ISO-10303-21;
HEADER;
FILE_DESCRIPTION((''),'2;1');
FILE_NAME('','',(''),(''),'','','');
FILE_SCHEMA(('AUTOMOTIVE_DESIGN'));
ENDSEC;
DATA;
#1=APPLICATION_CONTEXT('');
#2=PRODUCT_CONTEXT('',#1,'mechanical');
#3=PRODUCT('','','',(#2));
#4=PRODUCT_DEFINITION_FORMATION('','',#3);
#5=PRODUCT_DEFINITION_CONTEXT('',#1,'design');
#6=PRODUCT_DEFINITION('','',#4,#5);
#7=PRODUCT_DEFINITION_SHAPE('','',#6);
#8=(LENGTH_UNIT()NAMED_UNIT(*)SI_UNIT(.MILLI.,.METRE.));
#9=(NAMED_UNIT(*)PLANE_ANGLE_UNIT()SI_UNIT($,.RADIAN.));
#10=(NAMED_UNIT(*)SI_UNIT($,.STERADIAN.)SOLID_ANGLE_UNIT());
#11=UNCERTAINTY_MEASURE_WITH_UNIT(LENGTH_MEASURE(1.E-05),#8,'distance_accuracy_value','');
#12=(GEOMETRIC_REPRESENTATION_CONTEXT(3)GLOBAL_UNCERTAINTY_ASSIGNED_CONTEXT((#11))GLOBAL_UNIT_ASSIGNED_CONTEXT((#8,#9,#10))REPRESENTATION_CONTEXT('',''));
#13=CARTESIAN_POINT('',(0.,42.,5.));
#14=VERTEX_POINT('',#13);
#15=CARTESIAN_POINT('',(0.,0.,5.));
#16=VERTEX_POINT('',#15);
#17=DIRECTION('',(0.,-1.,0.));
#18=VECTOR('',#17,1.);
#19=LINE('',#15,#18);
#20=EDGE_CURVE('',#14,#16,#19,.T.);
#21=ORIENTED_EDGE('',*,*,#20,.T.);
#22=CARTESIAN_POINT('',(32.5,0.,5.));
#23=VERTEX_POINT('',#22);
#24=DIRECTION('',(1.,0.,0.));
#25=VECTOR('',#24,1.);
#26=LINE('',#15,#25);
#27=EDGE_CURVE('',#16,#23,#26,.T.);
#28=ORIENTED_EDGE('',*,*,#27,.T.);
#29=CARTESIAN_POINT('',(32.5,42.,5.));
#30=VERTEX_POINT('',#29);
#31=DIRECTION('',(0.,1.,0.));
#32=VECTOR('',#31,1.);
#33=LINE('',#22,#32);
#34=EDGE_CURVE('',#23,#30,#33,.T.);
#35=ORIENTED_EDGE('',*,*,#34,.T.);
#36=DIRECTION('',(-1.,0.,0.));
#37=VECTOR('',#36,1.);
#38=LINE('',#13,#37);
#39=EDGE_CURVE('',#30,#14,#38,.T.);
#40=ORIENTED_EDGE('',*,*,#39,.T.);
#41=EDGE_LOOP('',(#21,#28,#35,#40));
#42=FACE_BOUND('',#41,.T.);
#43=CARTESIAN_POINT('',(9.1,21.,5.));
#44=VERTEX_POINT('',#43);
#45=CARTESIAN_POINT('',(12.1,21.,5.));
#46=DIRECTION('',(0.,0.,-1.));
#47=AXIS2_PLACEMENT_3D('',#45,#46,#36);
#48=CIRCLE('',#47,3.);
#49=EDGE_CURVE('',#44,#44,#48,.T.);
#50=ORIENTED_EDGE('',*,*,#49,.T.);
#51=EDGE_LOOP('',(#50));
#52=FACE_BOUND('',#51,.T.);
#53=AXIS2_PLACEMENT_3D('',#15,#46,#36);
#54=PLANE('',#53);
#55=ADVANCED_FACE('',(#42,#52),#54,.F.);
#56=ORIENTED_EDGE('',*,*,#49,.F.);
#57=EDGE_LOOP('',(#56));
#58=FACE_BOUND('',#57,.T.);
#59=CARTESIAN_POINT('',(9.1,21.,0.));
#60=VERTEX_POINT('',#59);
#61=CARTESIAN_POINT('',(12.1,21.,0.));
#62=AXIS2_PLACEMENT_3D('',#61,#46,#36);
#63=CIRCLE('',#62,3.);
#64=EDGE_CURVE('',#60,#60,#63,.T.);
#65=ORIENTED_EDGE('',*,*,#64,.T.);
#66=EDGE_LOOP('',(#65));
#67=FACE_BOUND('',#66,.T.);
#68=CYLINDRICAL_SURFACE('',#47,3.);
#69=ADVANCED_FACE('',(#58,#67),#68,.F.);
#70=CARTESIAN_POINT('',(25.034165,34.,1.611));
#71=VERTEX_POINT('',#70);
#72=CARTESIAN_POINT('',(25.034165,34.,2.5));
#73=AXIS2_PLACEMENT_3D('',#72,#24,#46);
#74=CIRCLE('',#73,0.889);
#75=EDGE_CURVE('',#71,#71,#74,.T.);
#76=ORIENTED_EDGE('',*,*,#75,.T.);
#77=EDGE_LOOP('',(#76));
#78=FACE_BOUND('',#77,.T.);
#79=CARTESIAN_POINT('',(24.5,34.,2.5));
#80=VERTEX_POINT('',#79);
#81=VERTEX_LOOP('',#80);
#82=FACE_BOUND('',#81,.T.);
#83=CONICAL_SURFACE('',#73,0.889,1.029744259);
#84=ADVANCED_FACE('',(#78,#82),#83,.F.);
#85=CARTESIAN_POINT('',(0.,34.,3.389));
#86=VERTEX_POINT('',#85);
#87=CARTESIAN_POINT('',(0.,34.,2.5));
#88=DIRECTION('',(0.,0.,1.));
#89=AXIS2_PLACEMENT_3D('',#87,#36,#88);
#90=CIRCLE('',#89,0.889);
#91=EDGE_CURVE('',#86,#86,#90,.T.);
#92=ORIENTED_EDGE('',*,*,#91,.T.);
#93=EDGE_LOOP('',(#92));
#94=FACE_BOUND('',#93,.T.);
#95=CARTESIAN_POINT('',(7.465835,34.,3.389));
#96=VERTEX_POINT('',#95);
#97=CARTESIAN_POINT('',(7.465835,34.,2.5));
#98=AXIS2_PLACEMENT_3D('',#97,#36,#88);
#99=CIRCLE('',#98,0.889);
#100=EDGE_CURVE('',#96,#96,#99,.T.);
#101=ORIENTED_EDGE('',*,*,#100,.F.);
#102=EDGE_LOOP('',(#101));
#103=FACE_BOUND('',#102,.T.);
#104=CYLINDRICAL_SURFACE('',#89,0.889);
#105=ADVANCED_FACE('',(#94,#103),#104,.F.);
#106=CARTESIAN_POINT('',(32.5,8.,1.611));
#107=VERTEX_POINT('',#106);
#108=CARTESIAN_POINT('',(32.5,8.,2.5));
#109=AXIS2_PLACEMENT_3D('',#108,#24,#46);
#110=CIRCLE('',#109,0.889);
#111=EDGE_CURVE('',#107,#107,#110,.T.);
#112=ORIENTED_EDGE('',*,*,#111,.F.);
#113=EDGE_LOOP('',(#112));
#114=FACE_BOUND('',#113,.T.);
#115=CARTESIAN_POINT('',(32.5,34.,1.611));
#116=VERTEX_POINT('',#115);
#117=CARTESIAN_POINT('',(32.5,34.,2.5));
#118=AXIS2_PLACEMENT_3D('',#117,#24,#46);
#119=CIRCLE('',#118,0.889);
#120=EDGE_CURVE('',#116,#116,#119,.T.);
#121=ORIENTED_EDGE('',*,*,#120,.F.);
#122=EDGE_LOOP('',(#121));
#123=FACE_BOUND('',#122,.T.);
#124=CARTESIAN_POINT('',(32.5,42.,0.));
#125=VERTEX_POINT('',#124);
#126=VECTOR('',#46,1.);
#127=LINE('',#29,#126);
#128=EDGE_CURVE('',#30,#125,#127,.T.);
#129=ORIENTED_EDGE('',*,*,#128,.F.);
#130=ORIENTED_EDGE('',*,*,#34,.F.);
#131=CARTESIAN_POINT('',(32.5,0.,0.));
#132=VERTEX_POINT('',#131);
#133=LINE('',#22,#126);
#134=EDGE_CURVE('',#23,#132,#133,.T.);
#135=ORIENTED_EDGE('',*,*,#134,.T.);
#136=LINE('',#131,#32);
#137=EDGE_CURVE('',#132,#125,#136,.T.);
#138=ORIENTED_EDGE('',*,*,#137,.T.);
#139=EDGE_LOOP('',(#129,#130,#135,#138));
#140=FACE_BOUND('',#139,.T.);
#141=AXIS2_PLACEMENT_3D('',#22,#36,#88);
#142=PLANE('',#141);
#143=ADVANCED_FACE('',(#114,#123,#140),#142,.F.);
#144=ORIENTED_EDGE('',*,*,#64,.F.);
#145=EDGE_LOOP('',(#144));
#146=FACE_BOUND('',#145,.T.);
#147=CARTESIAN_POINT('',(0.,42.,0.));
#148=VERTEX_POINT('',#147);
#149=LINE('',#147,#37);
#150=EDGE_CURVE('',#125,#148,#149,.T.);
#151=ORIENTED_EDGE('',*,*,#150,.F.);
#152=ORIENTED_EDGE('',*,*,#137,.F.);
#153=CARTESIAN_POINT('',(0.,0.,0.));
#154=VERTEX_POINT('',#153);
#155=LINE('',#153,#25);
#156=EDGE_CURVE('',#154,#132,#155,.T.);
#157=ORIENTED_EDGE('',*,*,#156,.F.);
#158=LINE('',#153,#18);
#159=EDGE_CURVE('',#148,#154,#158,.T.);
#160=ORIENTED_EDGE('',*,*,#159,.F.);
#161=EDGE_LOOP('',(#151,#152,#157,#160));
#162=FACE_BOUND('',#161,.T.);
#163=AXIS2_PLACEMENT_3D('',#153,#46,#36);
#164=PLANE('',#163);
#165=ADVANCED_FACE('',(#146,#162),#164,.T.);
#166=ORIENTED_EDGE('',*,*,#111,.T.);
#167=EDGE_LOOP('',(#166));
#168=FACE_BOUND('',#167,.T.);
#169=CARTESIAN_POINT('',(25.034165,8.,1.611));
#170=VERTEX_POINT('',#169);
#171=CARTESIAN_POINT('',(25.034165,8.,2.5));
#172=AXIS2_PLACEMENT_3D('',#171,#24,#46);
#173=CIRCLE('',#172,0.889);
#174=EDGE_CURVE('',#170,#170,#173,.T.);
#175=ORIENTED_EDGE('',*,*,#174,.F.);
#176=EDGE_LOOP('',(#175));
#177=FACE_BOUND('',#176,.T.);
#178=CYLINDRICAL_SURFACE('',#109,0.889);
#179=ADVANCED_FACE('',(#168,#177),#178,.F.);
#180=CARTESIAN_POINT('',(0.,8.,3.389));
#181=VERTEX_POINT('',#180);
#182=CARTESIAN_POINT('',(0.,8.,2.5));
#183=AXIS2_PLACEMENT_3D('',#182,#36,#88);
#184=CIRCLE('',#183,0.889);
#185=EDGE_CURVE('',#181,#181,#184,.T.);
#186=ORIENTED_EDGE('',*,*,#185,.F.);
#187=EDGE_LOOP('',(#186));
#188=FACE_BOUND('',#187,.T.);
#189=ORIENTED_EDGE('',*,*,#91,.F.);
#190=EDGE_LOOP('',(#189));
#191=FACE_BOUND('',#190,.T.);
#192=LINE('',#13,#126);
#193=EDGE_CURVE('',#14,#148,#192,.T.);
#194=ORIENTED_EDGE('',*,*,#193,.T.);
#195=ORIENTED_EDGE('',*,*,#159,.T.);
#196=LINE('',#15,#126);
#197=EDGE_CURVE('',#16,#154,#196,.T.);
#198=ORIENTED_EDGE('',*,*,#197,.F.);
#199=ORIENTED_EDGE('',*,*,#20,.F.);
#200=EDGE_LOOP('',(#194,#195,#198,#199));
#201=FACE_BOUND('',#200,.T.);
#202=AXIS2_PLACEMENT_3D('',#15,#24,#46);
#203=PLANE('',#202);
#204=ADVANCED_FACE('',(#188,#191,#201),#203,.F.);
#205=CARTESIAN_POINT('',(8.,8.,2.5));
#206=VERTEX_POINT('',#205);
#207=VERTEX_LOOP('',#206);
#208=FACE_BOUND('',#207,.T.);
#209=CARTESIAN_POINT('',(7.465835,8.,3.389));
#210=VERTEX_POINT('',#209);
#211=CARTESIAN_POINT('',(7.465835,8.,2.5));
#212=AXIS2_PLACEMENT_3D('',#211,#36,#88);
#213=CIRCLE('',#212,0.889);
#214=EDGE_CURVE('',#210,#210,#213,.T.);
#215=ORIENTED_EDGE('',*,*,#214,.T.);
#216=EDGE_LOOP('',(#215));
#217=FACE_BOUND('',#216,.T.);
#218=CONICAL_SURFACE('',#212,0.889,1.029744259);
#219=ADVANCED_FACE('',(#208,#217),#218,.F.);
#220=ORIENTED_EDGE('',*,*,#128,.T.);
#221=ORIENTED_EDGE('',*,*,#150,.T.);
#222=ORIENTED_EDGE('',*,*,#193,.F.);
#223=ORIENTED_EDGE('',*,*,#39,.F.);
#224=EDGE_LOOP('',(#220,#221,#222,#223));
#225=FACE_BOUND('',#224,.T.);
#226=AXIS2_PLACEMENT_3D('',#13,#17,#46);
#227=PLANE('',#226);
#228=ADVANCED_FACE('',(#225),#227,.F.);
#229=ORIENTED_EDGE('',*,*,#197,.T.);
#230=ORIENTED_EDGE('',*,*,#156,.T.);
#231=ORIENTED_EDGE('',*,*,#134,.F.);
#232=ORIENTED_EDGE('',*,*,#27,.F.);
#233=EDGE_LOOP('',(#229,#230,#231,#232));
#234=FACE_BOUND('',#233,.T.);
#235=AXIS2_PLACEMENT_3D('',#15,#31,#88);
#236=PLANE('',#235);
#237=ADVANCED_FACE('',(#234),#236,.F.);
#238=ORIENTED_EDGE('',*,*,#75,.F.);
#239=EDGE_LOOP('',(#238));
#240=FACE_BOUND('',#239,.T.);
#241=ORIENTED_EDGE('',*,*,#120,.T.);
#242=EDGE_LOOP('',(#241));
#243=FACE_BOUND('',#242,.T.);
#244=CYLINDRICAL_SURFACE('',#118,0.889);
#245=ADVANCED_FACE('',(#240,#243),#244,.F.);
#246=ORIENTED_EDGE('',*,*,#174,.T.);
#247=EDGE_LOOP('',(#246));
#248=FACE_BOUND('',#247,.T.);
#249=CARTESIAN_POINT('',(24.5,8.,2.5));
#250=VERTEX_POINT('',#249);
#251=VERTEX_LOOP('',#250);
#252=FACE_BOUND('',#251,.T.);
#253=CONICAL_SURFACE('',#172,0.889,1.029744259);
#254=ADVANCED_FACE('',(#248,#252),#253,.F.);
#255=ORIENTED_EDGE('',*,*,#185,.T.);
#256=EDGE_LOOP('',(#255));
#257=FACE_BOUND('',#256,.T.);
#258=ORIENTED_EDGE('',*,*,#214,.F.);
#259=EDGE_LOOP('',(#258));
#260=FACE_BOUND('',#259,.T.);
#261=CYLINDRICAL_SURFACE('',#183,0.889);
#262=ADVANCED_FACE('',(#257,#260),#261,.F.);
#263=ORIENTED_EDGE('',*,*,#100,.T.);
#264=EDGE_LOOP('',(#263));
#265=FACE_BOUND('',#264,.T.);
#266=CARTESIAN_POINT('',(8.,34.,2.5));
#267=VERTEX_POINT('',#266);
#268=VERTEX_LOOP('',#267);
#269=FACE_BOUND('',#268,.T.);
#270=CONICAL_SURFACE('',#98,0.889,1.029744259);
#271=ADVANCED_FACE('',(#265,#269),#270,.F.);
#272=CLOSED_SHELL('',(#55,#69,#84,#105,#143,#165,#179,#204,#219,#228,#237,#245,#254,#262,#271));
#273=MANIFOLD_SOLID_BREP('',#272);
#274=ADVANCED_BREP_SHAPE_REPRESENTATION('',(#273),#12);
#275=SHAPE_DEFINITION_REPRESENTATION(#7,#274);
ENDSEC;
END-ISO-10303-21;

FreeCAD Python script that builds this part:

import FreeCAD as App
import Part
import Sketcher
Q = App.Units.Quantity


def add_polygon(sketch, points):
    """Adds a closed chain of lines whose ends are joined by coincident constraints."""
    first, n = sketch.GeometryCount, len(points)
    for a, b in zip(points, points[1:] + points[:1]):
        sketch.addGeometry(Part.LineSegment(App.Vector(*a, 0), App.Vector(*b, 0)), False)
    for i in range(n):
        sketch.addConstraint(Sketcher.Constraint("Coincident", first + i, 2, first + (i + 1) % n, 1))

doc = App.newDocument("Part")
params = doc.addObject("Spreadsheet::Sheet", "Params")
for row, (alias, value) in enumerate([
    ("sketch1_height", "42 mm"),
    ("sketch1_width", "32.5 mm"),
    ("pad1_length", "5 mm"),
    ("hole_diameter", "1.778 mm"),
    ("hole_depth", "7.465835 mm"),
    ("hole2_diameter", "1.778 mm"),
    ("hole2_depth", "7.465835 mm"),
    ("sketch4_diameter", "6 mm"),
    ("pocket1_length", "5 mm"),
], start=1):
    params.set(f"A{row}", alias)
    params.set(f"B{row}", "=" + value)
    params.setAlias(f"B{row}", alias)

body = doc.addObject("PartDesign::Body", "Body")

sketch1 = body.newObject("Sketcher::SketchObject", "Sketch")
sketch1.AttachmentSupport = (doc.getObject("XY_Plane"), [""])
sketch1.MapMode = "FlatFace"
add_polygon(sketch1, [(0, 42), (0, 0), (32, 0), (32, 42)])
sketch1.addConstraint(Sketcher.Constraint("Vertical", 0))
sketch1.addConstraint(Sketcher.Constraint("Horizontal", 1))
sketch1.addConstraint(Sketcher.Constraint("Vertical", 2))
sketch1.addConstraint(Sketcher.Constraint("Horizontal", 3))
sketch1.addConstraint(Sketcher.Constraint("Coincident", 0, 2, -1, 1))
sketch1.addConstraint(Sketcher.Constraint("DistanceY", 0, 2, 0, 1, Q("42 mm")))
sketch1.addConstraint(Sketcher.Constraint("DistanceX", 1, 1, 1, 2, Q("32.5 mm")))
sketch1.setExpression("Constraints[9]", "Params.sketch1_height")
sketch1.setExpression("Constraints[10]", "Params.sketch1_width")
pad1 = body.newObject("PartDesign::Pad", "Pad")
pad1.Profile = sketch1
pad1.setExpression("Length", "Params.pad1_length")

sketch2 = body.newObject("Sketcher::SketchObject", "Sketch001")
sketch2.AttachmentSupport = (doc.getObject("YZ_Plane"), [""])
sketch2.MapMode = "FlatFace"
sketch2.addGeometry(Part.Circle(App.Vector(34, 2.5, 0), App.Vector(0, 0, 1), 0.9), False)
sketch2.addGeometry(Part.Circle(App.Vector(8, 2.5, 0), App.Vector(0, 0, 1), 0.9), False)
sketch2.addConstraint(Sketcher.Constraint("Equal", 0, 1))
sketch2.addConstraint(Sketcher.Constraint("Horizontal", 0, 3, 1, 3))
sketch2.addConstraint(Sketcher.Constraint("Diameter", 0, Q("1.778 mm")))
sketch2.addConstraint(Sketcher.Constraint("DistanceX", -1, 1, 0, 3, Q("34 mm")))
sketch2.addConstraint(Sketcher.Constraint("DistanceX", -1, 1, 1, 3, Q("8 mm")))
sketch2.addConstraint(Sketcher.Constraint("DistanceY", -1, 1, 0, 3, Q("2.5 mm")))
doc.recompute()
hole = body.newObject("PartDesign::Hole", "Hole")
hole.Profile = sketch2
hole.ThreadType = "None"
hole.setExpression("Diameter", "Params.hole_diameter")
hole.DepthType = "Dimension"
hole.setExpression("Depth", "Params.hole_depth")
hole.DrillPoint = "Angled"
hole.DrillPointAngle = 118
hole.Reversed = True

sketch3 = body.newObject("Sketcher::SketchObject", "Sketch002")
sketch3.AttachmentSupport = (doc.getObject("YZ_Plane"), [""])
sketch3.MapMode = "FlatFace"
sketch3.AttachmentOffset = App.Placement(App.Vector(0, 0, 32.5), App.Rotation())
sketch3.addGeometry(Part.Circle(App.Vector(34, 2.5, 0), App.Vector(0, 0, 1), 0.9), False)
sketch3.addGeometry(Part.Circle(App.Vector(8, 2.5, 0), App.Vector(0, 0, 1), 0.9), False)
sketch3.addConstraint(Sketcher.Constraint("Equal", 0, 1))
sketch3.addConstraint(Sketcher.Constraint("Horizontal", 0, 3, 1, 3))
sketch3.addConstraint(Sketcher.Constraint("Diameter", 0, Q("1.778 mm")))
sketch3.addConstraint(Sketcher.Constraint("DistanceX", -1, 1, 0, 3, Q("34 mm")))
sketch3.addConstraint(Sketcher.Constraint("DistanceX", -1, 1, 1, 3, Q("8 mm")))
sketch3.addConstraint(Sketcher.Constraint("DistanceY", -1, 1, 0, 3, Q("2.5 mm")))
doc.recompute()
hole2 = body.newObject("PartDesign::Hole", "Hole001")
hole2.Profile = sketch3
hole2.ThreadType = "None"
hole2.setExpression("Diameter", "Params.hole2_diameter")
hole2.DepthType = "Dimension"
hole2.setExpression("Depth", "Params.hole2_depth")
hole2.DrillPoint = "Angled"
hole2.DrillPointAngle = 118

sketch4 = body.newObject("Sketcher::SketchObject", "Sketch003")
sketch4.AttachmentSupport = (doc.getObject("XY_Plane"), [""])
sketch4.MapMode = "FlatFace"
sketch4.addGeometry(Part.Circle(App.Vector(12.1, 21, 0), App.Vector(0, 0, 1), 3), False)
sketch4.addConstraint(Sketcher.Constraint("Diameter", 0, Q("6 mm")))
sketch4.addConstraint(Sketcher.Constraint("DistanceY", -1, 1, 0, 3, Q("21 mm")))
sketch4.addConstraint(Sketcher.Constraint("DistanceX", -1, 1, 0, 3, Q("12.1 mm")))
sketch4.setExpression("Constraints[0]", "Params.sketch4_diameter")
pocket1 = body.newObject("PartDesign::Pocket", "Pocket")
pocket1.Profile = sketch4
pocket1.setExpression("Length", "Params.pocket1_length")
pocket1.Reversed = True

doc.recompute()
